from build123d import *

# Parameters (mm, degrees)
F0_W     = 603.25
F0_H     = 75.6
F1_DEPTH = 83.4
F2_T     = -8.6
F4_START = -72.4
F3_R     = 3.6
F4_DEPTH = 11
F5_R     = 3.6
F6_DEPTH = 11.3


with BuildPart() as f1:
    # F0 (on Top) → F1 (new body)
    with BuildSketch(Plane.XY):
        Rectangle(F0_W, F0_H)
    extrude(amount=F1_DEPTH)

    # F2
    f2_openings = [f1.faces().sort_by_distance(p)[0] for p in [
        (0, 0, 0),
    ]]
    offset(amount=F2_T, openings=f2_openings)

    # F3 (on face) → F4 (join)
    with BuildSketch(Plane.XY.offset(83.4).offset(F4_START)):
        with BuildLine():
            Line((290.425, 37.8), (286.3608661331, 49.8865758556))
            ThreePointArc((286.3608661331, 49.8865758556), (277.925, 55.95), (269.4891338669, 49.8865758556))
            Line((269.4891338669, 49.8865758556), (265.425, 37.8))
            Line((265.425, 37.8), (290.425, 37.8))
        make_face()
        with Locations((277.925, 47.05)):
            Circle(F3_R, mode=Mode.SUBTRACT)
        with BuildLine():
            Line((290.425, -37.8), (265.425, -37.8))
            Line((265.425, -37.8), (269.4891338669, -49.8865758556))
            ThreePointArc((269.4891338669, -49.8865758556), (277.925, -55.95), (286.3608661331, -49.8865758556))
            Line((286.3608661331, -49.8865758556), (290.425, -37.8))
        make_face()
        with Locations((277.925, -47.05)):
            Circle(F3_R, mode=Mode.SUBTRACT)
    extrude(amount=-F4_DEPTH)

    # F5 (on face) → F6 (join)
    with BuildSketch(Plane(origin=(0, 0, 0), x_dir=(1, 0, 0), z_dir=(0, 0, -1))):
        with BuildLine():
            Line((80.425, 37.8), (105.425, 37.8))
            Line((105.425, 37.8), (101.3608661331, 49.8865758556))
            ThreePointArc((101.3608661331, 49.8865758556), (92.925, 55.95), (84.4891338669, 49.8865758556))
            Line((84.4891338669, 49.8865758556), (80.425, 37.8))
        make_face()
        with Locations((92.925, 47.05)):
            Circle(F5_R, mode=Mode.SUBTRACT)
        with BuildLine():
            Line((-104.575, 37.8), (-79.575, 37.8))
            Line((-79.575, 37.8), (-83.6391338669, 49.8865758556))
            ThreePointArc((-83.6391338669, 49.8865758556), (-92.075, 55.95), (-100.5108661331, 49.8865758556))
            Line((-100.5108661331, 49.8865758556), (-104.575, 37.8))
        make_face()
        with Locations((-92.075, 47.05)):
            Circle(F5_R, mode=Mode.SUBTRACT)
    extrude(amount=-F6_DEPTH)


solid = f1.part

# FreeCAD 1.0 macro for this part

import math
import FreeCAD as App
import Part
import Sketcher
from FreeCAD import Vector


def faces_at(feature, points):
    """Names of the faces that lie closest to the given points."""
    faces = feature.Shape.Faces
    near = lambda p: min(range(len(faces)), key=lambda i: faces[i].distToShape(Part.Vertex(*p))[0])
    return sorted({f"Face{near(p) + 1}" for p in points})


def add_polygon(sketch, points):
    """Adds a closed chain of lines whose ends are joined by coincident constraints."""
    first, n = sketch.GeometryCount, len(points)
    for a, b in zip(points, points[1:] + points[:1]):
        sketch.addGeometry(Part.LineSegment(App.Vector(*a, 0), App.Vector(*b, 0)), False)
    for i in range(n):
        sketch.addConstraint(Sketcher.Constraint("Coincident", first + i, 2, first + (i + 1) % n, 1))

doc = App.newDocument("Part")
body = doc.addObject("PartDesign::Body", "Body")

# Sketch on XY plane
sketch1 = doc.addObject("Sketcher::SketchObject", "Sketch")
body.addObject(sketch1)
sketch1.AttachmentSupport = (doc.XY_Plane, [""])
sketch1.MapMode = "FlatFace"
add_polygon(sketch1, [(-302, 38), (-302, -38), (302, -38), (302, 38)])  # lines 0-3
sketch1.addConstraint([
    Sketcher.Constraint("Vertical", 0),
    Sketcher.Constraint("Horizontal", 1),
    Sketcher.Constraint("Vertical", 2),
    Sketcher.Constraint("Horizontal", 3),
    Sketcher.Constraint("Symmetric", 0, 2, 2, 2, -1, 1),
    Sketcher.Constraint("DistanceY", 0, 2, 0, 1, 75.6),
    Sketcher.Constraint("DistanceX", 1, 1, 1, 2, 603.25),
])
pad1 = doc.addObject("PartDesign::Pad", "Pad")
body.addObject(pad1)
pad1.Profile = sketch1
pad1.Length = 83.4
doc.recompute()

thickness = doc.addObject("PartDesign::Thickness", "Thickness")
body.addObject(thickness)
thickness.Base = (pad1, faces_at(pad1, [(0, 0, 0)]))
thickness.Value = 8.6
thickness.Reversed = True
thickness.Join = "Arc"

# Sketch on XY plane
sketch2 = doc.addObject("Sketcher::SketchObject", "Sketch001")
body.addObject(sketch2)
sketch2.AttachmentSupport = (doc.XY_Plane, [""])
sketch2.MapMode = "FlatFace"
sketch2.AttachmentOffset = App.Placement(Vector(0, 0, 11), App.Rotation())
sketch2.addGeometry([
    Part.LineSegment(Vector(290.4, 37.8, 0), Vector(286.4, 49.9, 0)),  # 0
    Part.ArcOfCircle(Part.Circle(Vector(277.9, 47, 0), Vector(0, 0, 1), 8.9), math.radians(19), math.radians(161)),  # 1
    Part.LineSegment(Vector(269.5, 49.9, 0), Vector(265.4, 37.8, 0)),  # 2
    Part.LineSegment(Vector(265.4, 37.8, 0), Vector(290.4, 37.8, 0)),  # 3
    Part.Circle(Vector(277.9, 47, 0), Vector(0, 0, 1), 3.6),  # 4
    Part.LineSegment(Vector(290.4, -37.8, 0), Vector(265.4, -37.8, 0)),  # 5
    Part.LineSegment(Vector(265.4, -37.8, 0), Vector(269.5, -49.9, 0)),  # 6
    Part.ArcOfCircle(Part.Circle(Vector(277.9, -47, 0), Vector(0, 0, 1), 8.9), math.radians(-161), math.radians(-19)),  # 7
    Part.LineSegment(Vector(286.4, -49.9, 0), Vector(290.4, -37.8, 0)),  # 8
    Part.Circle(Vector(277.9, -47, 0), Vector(0, 0, 1), 3.6),  # 9
], False)
sketch2.addConstraint([
    Sketcher.Constraint("Tangent", 0, 2, 1, 1),
    Sketcher.Constraint("Tangent", 1, 2, 2, 1),
    Sketcher.Constraint("Coincident", 2, 2, 3, 1),
    Sketcher.Constraint("Coincident", 3, 2, 0, 1),
    Sketcher.Constraint("Coincident", 5, 2, 6, 1),
    Sketcher.Constraint("Tangent", 6, 2, 7, 1),
    Sketcher.Constraint("Tangent", 7, 2, 8, 1),
    Sketcher.Constraint("Coincident", 8, 2, 5, 1),
    Sketcher.Constraint("Horizontal", 3),
    Sketcher.Constraint("Horizontal", 5),
    Sketcher.Constraint("Coincident", 4, 3, 1, 3),
    Sketcher.Constraint("Coincident", 9, 3, 7, 3),
    Sketcher.Constraint("Equal", 1, 7),
    Sketcher.Constraint("Equal", 4, 9),
    Sketcher.Constraint("Symmetric", 1, 3, 7, 3, -1),
    Sketcher.Constraint("Symmetric", 2, 2, 5, 2, -1),
    Sketcher.Constraint("Parallel", 0, 6),
    Sketcher.Constraint("Parallel", 2, 8),
    Sketcher.Constraint("Diameter", 4, 7.2),
    Sketcher.Constraint("Radius", 1, 8.9),
    Sketcher.Constraint("DistanceX", 3, 1, 3, 2, 25.0),
    Sketcher.Constraint("DistanceY", -1, 1, 2, 2, 37.8),
    Sketcher.Constraint("DistanceY", 7, 3, 1, 3, 94.1),
    Sketcher.Constraint("DistanceX", -1, 1, 1, 3, 277.925),
])
pad2 = doc.addObject("PartDesign::Pad", "Pad001")
body.addObject(pad2)
pad2.Profile = sketch2
pad2.Length = 11
pad2.Reversed = True

# Sketch on XY plane
sketch3 = doc.addObject("Sketcher::SketchObject", "Sketch002")
body.addObject(sketch3)
sketch3.AttachmentSupport = (doc.XY_Plane, [""])
sketch3.MapMode = "FlatFace"
sketch3.addGeometry([
    Part.LineSegment(Vector(80.4, -37.8, 0), Vector(105.4, -37.8, 0)),  # 0
    Part.LineSegment(Vector(105.4, -37.8, 0), Vector(101.4, -49.9, 0)),  # 1
    Part.ArcOfCircle(Part.Circle(Vector(92.9, -47, 0), Vector(0, 0, 1), 8.9), math.radians(-161), math.radians(-19)),  # 2
    Part.LineSegment(Vector(84.5, -49.9, 0), Vector(80.4, -37.8, 0)),  # 3
    Part.Circle(Vector(92.9, -47, 0), Vector(0, 0, 1), 3.6),  # 4
    Part.LineSegment(Vector(-104.6, -37.8, 0), Vector(-79.6, -37.8, 0)),  # 5
    Part.LineSegment(Vector(-79.6, -37.8, 0), Vector(-83.6, -49.9, 0)),  # 6
    Part.ArcOfCircle(Part.Circle(Vector(-92.1, -47, 0), Vector(0, 0, 1), 8.9), math.radians(-161), math.radians(-19)),  # 7
    Part.LineSegment(Vector(-100.5, -49.9, 0), Vector(-104.6, -37.8, 0)),  # 8
    Part.Circle(Vector(-92.1, -47, 0), Vector(0, 0, 1), 3.6),  # 9
], False)
sketch3.addConstraint([
    Sketcher.Constraint("Coincident", 0, 2, 1, 1),
    Sketcher.Constraint("Tangent", 1, 2, 2, 2),
    Sketcher.Constraint("Tangent", 2, 1, 3, 1),
    Sketcher.Constraint("Coincident", 3, 2, 0, 1),
    Sketcher.Constraint("Coincident", 5, 2, 6, 1),
    Sketcher.Constraint("Tangent", 6, 2, 7, 2),
    Sketcher.Constraint("Tangent", 7, 1, 8, 1),
    Sketcher.Constraint("Coincident", 8, 2, 5, 1),
    Sketcher.Constraint("Horizontal", 0),
    Sketcher.Constraint("Horizontal", 5),
    Sketcher.Constraint("Coincident", 4, 3, 2, 3),
    Sketcher.Constraint("Coincident", 9, 3, 7, 3),
    Sketcher.Constraint("Equal", 2, 7),
    Sketcher.Constraint("Equal", 4, 9),
    Sketcher.Constraint("Parallel", 1, 6),
    Sketcher.Constraint("Parallel", 3, 8),
    Sketcher.Constraint("Horizontal", 4, 3, 7, 3),
    Sketcher.Constraint("Horizontal", 1, 2, 2, 1),
    Sketcher.Constraint("Horizontal", 3, 2, 5, 2),
    Sketcher.Constraint("Diameter", 4, 7.2),
    Sketcher.Constraint("Radius", 2, 8.9),
    Sketcher.Constraint("DistanceX", 0, 1, 0, 2, 25.0),
    Sketcher.Constraint("DistanceX", 7, 3, 2, 3, 185.0),
    Sketcher.Constraint("DistanceY", 0, 2, -1, 1, 37.8),
    Sketcher.Constraint("DistanceY", 2, 3, -1, 1, 47.05),
    Sketcher.Constraint("DistanceX", -1, 1, 2, 3, 92.925),
])
pad3 = doc.addObject("PartDesign::Pad", "Pad002")
body.addObject(pad3)
pad3.Profile = sketch3
pad3.Length = 11.3

doc.recompute()
